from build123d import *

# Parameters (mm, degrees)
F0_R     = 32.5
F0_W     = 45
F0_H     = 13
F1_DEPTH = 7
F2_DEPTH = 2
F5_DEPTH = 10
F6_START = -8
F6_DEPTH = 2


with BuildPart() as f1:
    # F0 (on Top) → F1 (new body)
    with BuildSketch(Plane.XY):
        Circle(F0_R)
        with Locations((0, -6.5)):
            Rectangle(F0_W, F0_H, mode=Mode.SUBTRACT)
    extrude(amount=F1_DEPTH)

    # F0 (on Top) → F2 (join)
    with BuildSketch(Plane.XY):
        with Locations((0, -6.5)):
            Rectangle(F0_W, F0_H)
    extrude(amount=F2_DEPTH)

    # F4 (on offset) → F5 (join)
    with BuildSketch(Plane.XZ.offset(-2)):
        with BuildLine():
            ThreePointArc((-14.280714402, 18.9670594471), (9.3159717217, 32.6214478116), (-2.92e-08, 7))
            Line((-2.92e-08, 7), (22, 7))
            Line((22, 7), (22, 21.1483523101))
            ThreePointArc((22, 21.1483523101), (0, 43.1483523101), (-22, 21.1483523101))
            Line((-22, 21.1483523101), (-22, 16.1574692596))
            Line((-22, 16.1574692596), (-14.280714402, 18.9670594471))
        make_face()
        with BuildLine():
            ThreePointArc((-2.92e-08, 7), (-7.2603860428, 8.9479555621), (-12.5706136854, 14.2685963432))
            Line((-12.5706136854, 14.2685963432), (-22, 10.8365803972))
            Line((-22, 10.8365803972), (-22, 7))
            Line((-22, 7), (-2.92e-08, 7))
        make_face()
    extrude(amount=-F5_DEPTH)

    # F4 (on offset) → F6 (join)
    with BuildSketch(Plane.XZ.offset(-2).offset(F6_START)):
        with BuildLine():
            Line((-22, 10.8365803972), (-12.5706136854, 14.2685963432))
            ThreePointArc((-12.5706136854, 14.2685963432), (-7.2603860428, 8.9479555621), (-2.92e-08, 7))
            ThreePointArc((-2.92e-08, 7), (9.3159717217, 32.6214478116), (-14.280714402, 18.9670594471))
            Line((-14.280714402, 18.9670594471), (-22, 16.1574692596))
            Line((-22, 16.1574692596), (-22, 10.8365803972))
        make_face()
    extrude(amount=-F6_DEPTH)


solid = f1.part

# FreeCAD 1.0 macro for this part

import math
import FreeCAD as App
import Part
import Sketcher
Q = App.Units.Quantity

doc = App.newDocument("Part")
params = doc.addObject("Spreadsheet::Sheet", "Params")
for row, (alias, value) in enumerate([
    ("sketch1_diameter", "65 mm"),
    ("sketch1_width", "45 mm"),
    ("sketch1_height", "13 mm"),
    ("pad1_length", "7 mm"),
    ("sketch2_width", "45 mm"),
    ("sketch2_height", "13 mm"),
    ("pad2_length", "2 mm"),
    ("sketch3_radius", "22 mm"),
    ("pad3_length", "10 mm"),
    ("pad4_length", "2 mm"),
], start=1):
    params.set(f"A{row}", alias)
    params.set(f"B{row}", "=" + value)
    params.setAlias(f"B{row}", alias)

body = doc.addObject("PartDesign::Body", "Body")

sketch1 = body.newObject("Sketcher::SketchObject", "Sketch")
sketch1.AttachmentSupport = (doc.getObject("XY_Plane"), [""])
sketch1.MapMode = "FlatFace"
sketch1.addGeometry(Part.Circle(App.Vector(0, 0, 0), App.Vector(0, 0, 1), 32), False)
sketch1.addGeometry(Part.LineSegment(App.Vector(22, -13, 0), App.Vector(-22, -13, 0)), False)
sketch1.addGeometry(Part.LineSegment(App.Vector(-22, -13, 0), App.Vector(-22, 0, 0)), False)
sketch1.addGeometry(Part.LineSegment(App.Vector(-22, 0, 0), App.Vector(22, 0, 0)), False)
sketch1.addGeometry(Part.LineSegment(App.Vector(22, 0, 0), App.Vector(22, -13, 0)), False)
sketch1.addConstraint(Sketcher.Constraint("Coincident", 1, 2, 2, 1))
sketch1.addConstraint(Sketcher.Constraint("Coincident", 2, 2, 3, 1))
sketch1.addConstraint(Sketcher.Constraint("Coincident", 3, 2, 4, 1))
sketch1.addConstraint(Sketcher.Constraint("Coincident", 4, 2, 1, 1))
sketch1.addConstraint(Sketcher.Constraint("Horizontal", 1))
sketch1.addConstraint(Sketcher.Constraint("Vertical", 2))
sketch1.addConstraint(Sketcher.Constraint("Horizontal", 3))
sketch1.addConstraint(Sketcher.Constraint("Vertical", 4))
sketch1.addConstraint(Sketcher.Constraint("Coincident", 0, 3, -1, 1))
sketch1.addConstraint(Sketcher.Constraint("Symmetric", 2, 2, 3, 2, -1, 1))
sketch1.addConstraint(Sketcher.Constraint("Diameter", 0, 65.0))
sketch1.addConstraint(Sketcher.Constraint("DistanceX", 1, 2, 1, 1, 45.0))
sketch1.addConstraint(Sketcher.Constraint("DistanceY", 2, 1, 2, 2, 13.0))
sketch1.setExpression("Constraints[10]", "Params.sketch1_diameter")
sketch1.setExpression("Constraints[11]", "Params.sketch1_width")
sketch1.setExpression("Constraints[12]", "Params.sketch1_height")
pad1 = body.newObject("PartDesign::Pad", "Pad")
pad1.Profile = sketch1
pad1.setExpression("Length", "Params.pad1_length")

sketch2 = body.newObject("Sketcher::SketchObject", "Sketch001")
sketch2.AttachmentSupport = (doc.getObject("XY_Plane"), [""])
sketch2.MapMode = "FlatFace"
sketch2.addGeometry(Part.LineSegment(App.Vector(-22, 0, 0), App.Vector(-22, -13, 0)), False)
sketch2.addGeometry(Part.LineSegment(App.Vector(-22, -13, 0), App.Vector(22, -13, 0)), False)
sketch2.addGeometry(Part.LineSegment(App.Vector(22, -13, 0), App.Vector(22, 0, 0)), False)
sketch2.addGeometry(Part.LineSegment(App.Vector(22, 0, 0), App.Vector(-22, 0, 0)), False)
sketch2.addConstraint(Sketcher.Constraint("Coincident", 0, 2, 1, 1))
sketch2.addConstraint(Sketcher.Constraint("Coincident", 1, 2, 2, 1))
sketch2.addConstraint(Sketcher.Constraint("Coincident", 2, 2, 3, 1))
sketch2.addConstraint(Sketcher.Constraint("Coincident", 3, 2, 0, 1))
sketch2.addConstraint(Sketcher.Constraint("Vertical", 0))
sketch2.addConstraint(Sketcher.Constraint("Horizontal", 1))
sketch2.addConstraint(Sketcher.Constraint("Vertical", 2))
sketch2.addConstraint(Sketcher.Constraint("Horizontal", 3))
sketch2.addConstraint(Sketcher.Constraint("Symmetric", 2, 2, 3, 2, -1, 1))
sketch2.addConstraint(Sketcher.Constraint("DistanceX", 1, 1, 1, 2, 45.0))
sketch2.addConstraint(Sketcher.Constraint("DistanceY", 0, 2, 0, 1, 13.0))
sketch2.setExpression("Constraints[9]", "Params.sketch2_width")
sketch2.setExpression("Constraints[10]", "Params.sketch2_height")
pad2 = body.newObject("PartDesign::Pad", "Pad001")
pad2.Profile = sketch2
pad2.setExpression("Length", "Params.pad2_length")

sketch3 = body.newObject("Sketcher::SketchObject", "Sketch002")
sketch3.AttachmentSupport = (doc.getObject("XZ_Plane"), [""])
sketch3.MapMode = "FlatFace"
sketch3.AttachmentOffset = App.Placement(App.Vector(0, 0, -2), App.Rotation())
sketch3.addGeometry(Part.ArcOfCircle(Part.Circle(App.Vector(0, 21.5, 0), App.Vector(0, 0, 1), 14.5), math.radians(-90), math.radians(190)), False)
sketch3.addGeometry(Part.LineSegment(App.Vector(0, 7, 0), App.Vector(22, 7, 0)), False)
sketch3.addGeometry(Part.LineSegment(App.Vector(22, 7, 0), App.Vector(22, 21.1, 0)), False)
sketch3.addGeometry(Part.ArcOfCircle(Part.Circle(App.Vector(0, 21.1, 0), App.Vector(0, 0, 1), 22), math.radians(0), math.radians(180)), False)
sketch3.addGeometry(Part.LineSegment(App.Vector(-22, 21.1, 0), App.Vector(-22, 16.2, 0)), False)
sketch3.addGeometry(Part.LineSegment(App.Vector(-22, 16.2, 0), App.Vector(-14.3, 19, 0)), False)
sketch3.addGeometry(Part.ArcOfCircle(Part.Circle(App.Vector(0, 21.5, 0), App.Vector(0, 0, 1), 14.5), math.radians(-150), math.radians(-90)), False)
sketch3.addGeometry(Part.LineSegment(App.Vector(-12.6, 14.3, 0), App.Vector(-22, 10.8, 0)), False)
sketch3.addGeometry(Part.LineSegment(App.Vector(-22, 10.8, 0), App.Vector(-22, 7, 0)), False)
sketch3.addGeometry(Part.LineSegment(App.Vector(-22, 7, 0), App.Vector(0, 7, 0)), False)
sketch3.addConstraint(Sketcher.Constraint("Tangent", 0, 1, 1, 1))
sketch3.addConstraint(Sketcher.Constraint("Coincident", 1, 2, 2, 1))
sketch3.addConstraint(Sketcher.Constraint("Tangent", 2, 2, 3, 1))
sketch3.addConstraint(Sketcher.Constraint("Tangent", 3, 2, 4, 1))
sketch3.addConstraint(Sketcher.Constraint("Coincident", 4, 2, 5, 1))
sketch3.addConstraint(Sketcher.Constraint("Coincident", 5, 2, 0, 2))
sketch3.addConstraint(Sketcher.Constraint("Coincident", 6, 1, 7, 1))
sketch3.addConstraint(Sketcher.Constraint("Coincident", 7, 2, 8, 1))
sketch3.addConstraint(Sketcher.Constraint("Coincident", 8, 2, 9, 1))
sketch3.addConstraint(Sketcher.Constraint("Tangent", 9, 2, 6, 2))
sketch3.addConstraint(Sketcher.Constraint("Horizontal", 1))
sketch3.addConstraint(Sketcher.Constraint("Vertical", 2))
sketch3.addConstraint(Sketcher.Constraint("Vertical", 4))
sketch3.addConstraint(Sketcher.Constraint("Vertical", 8))
sketch3.addConstraint(Sketcher.Constraint("Horizontal", 9))
sketch3.addConstraint(Sketcher.Constraint("Coincident", 6, 3, 0, 3))
sketch3.addConstraint(Sketcher.Constraint("Equal", 0, 6))
sketch3.addConstraint(Sketcher.Constraint("PointOnObject", 0, 3, -2))
sketch3.addConstraint(Sketcher.Constraint("PointOnObject", 3, 3, -2))
sketch3.addConstraint(Sketcher.Constraint("Parallel", 5, 7))
sketch3.addConstraint(Sketcher.Constraint("Vertical", 4, 2, 7, 2))
sketch3.addConstraint(Sketcher.Constraint("Radius", 3, 22.0))
sketch3.addConstraint(Sketcher.Constraint("Angle", 5, Q("20 deg")))
sketch3.addConstraint(Sketcher.Constraint("DistanceY", -1, 1, 0, 1, 7.0))
sketch3.addConstraint(Sketcher.Constraint("Radius", 0, 14.50437))
sketch3.addConstraint(Sketcher.Constraint("DistanceY", 8, 2, 8, 1, 3.83658))
sketch3.addConstraint(Sketcher.Constraint("DistanceY", 4, 2, 0, 3, 5.346901))
sketch3.addConstraint(Sketcher.Constraint("DistanceY", 2, 1, 2, 2, 14.148352))
sketch3.setExpression("Constraints[21]", "Params.sketch3_radius")
pad3 = body.newObject("PartDesign::Pad", "Pad002")
pad3.Profile = sketch3
pad3.setExpression("Length", "Params.pad3_length")
pad3.Reversed = True

sketch4 = body.newObject("Sketcher::SketchObject", "Sketch003")
sketch4.AttachmentSupport = (doc.getObject("XZ_Plane"), [""])
sketch4.MapMode = "FlatFace"
sketch4.AttachmentOffset = App.Placement(App.Vector(0, 0, -10), App.Rotation())
sketch4.addGeometry(Part.LineSegment(App.Vector(-22, 11, 0), App.Vector(-13, 14, 0)), False)
sketch4.addGeometry(Part.ArcOfCircle(Part.Circle(App.Vector(0, 22, 0), App.Vector(0, 0, 1), 15), math.radians(-150), math.radians(-90)), False)
sketch4.addGeometry(Part.ArcOfCircle(Part.Circle(App.Vector(0, 22, 0), App.Vector(0, 0, 1), 15), math.radians(-90), math.radians(190)), False)
sketch4.addGeometry(Part.LineSegment(App.Vector(-14, 19, 0), App.Vector(-22, 16, 0)), False)
sketch4.addGeometry(Part.LineSegment(App.Vector(-22, 16, 0), App.Vector(-22, 11, 0)), False)
sketch4.addConstraint(Sketcher.Constraint("Coincident", 0, 2, 1, 1))
sketch4.addConstraint(Sketcher.Constraint("Tangent", 1, 2, 2, 1))
sketch4.addConstraint(Sketcher.Constraint("Coincident", 2, 2, 3, 1))
sketch4.addConstraint(Sketcher.Constraint("Coincident", 3, 2, 4, 1))
sketch4.addConstraint(Sketcher.Constraint("Coincident", 4, 2, 0, 1))
sketch4.addConstraint(Sketcher.Constraint("Vertical", 4))
sketch4.addConstraint(Sketcher.Constraint("Equal", 1, 2))
sketch4.addConstraint(Sketcher.Constraint("PointOnObject", 1, 3, -2))
sketch4.addConstraint(Sketcher.Constraint("PointOnObject", 1, 2, -2))
sketch4.addConstraint(Sketcher.Constraint("Parallel", 0, 3))
sketch4.addConstraint(Sketcher.Constraint("Angle", 0, Q("20 deg")))
sketch4.addConstraint(Sketcher.Constraint("DistanceY", -1, 1, 1, 2, 7.0))
sketch4.addConstraint(Sketcher.Constraint("DistanceX", 3, 2, -1, 1, 22.0))
sketch4.addConstraint(Sketcher.Constraint("Radius", 1, 14.50437))
sketch4.addConstraint(Sketcher.Constraint("DistanceY", 4, 2, 4, 1, 5.320889))
sketch4.addConstraint(Sketcher.Constraint("DistanceX", 2, 2, 0, 2, 1.710101))
pad4 = body.newObject("PartDesign::Pad", "Pad003")
pad4.Profile = sketch4
pad4.setExpression("Length", "Params.pad4_length")
pad4.Reversed = True

doc.recompute()
